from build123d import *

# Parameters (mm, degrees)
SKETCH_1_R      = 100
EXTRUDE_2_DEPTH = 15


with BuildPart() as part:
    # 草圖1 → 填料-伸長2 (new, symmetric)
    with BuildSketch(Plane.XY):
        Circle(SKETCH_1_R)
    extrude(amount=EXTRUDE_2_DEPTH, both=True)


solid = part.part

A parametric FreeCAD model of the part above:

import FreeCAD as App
import Part
import Sketcher
from FreeCAD import Vector

doc = App.newDocument("Part")
body = doc.addObject("PartDesign::Body", "Body")

# Sketch on XY plane
sketch1 = body.newObject("Sketcher::SketchObject", "Sketch")
sketch1.AttachmentSupport = (doc.getObject("XY_Plane"), [""])
sketch1.MapMode = "FlatFace"
sketch1.addGeometry(Part.Circle(Vector(0, 0, 0), Vector(0, 0, 1), 100), False)
sketch1.addConstraint(Sketcher.Constraint("Coincident", 0, 3, -1, 1))
sketch1.addConstraint(Sketcher.Constraint("Diameter", 0, 200.0))
pad1 = body.newObject("PartDesign::Pad", "Pad")
pad1.Profile = sketch1
pad1.Length = 30
pad1.Midplane = True

doc.recompute()
